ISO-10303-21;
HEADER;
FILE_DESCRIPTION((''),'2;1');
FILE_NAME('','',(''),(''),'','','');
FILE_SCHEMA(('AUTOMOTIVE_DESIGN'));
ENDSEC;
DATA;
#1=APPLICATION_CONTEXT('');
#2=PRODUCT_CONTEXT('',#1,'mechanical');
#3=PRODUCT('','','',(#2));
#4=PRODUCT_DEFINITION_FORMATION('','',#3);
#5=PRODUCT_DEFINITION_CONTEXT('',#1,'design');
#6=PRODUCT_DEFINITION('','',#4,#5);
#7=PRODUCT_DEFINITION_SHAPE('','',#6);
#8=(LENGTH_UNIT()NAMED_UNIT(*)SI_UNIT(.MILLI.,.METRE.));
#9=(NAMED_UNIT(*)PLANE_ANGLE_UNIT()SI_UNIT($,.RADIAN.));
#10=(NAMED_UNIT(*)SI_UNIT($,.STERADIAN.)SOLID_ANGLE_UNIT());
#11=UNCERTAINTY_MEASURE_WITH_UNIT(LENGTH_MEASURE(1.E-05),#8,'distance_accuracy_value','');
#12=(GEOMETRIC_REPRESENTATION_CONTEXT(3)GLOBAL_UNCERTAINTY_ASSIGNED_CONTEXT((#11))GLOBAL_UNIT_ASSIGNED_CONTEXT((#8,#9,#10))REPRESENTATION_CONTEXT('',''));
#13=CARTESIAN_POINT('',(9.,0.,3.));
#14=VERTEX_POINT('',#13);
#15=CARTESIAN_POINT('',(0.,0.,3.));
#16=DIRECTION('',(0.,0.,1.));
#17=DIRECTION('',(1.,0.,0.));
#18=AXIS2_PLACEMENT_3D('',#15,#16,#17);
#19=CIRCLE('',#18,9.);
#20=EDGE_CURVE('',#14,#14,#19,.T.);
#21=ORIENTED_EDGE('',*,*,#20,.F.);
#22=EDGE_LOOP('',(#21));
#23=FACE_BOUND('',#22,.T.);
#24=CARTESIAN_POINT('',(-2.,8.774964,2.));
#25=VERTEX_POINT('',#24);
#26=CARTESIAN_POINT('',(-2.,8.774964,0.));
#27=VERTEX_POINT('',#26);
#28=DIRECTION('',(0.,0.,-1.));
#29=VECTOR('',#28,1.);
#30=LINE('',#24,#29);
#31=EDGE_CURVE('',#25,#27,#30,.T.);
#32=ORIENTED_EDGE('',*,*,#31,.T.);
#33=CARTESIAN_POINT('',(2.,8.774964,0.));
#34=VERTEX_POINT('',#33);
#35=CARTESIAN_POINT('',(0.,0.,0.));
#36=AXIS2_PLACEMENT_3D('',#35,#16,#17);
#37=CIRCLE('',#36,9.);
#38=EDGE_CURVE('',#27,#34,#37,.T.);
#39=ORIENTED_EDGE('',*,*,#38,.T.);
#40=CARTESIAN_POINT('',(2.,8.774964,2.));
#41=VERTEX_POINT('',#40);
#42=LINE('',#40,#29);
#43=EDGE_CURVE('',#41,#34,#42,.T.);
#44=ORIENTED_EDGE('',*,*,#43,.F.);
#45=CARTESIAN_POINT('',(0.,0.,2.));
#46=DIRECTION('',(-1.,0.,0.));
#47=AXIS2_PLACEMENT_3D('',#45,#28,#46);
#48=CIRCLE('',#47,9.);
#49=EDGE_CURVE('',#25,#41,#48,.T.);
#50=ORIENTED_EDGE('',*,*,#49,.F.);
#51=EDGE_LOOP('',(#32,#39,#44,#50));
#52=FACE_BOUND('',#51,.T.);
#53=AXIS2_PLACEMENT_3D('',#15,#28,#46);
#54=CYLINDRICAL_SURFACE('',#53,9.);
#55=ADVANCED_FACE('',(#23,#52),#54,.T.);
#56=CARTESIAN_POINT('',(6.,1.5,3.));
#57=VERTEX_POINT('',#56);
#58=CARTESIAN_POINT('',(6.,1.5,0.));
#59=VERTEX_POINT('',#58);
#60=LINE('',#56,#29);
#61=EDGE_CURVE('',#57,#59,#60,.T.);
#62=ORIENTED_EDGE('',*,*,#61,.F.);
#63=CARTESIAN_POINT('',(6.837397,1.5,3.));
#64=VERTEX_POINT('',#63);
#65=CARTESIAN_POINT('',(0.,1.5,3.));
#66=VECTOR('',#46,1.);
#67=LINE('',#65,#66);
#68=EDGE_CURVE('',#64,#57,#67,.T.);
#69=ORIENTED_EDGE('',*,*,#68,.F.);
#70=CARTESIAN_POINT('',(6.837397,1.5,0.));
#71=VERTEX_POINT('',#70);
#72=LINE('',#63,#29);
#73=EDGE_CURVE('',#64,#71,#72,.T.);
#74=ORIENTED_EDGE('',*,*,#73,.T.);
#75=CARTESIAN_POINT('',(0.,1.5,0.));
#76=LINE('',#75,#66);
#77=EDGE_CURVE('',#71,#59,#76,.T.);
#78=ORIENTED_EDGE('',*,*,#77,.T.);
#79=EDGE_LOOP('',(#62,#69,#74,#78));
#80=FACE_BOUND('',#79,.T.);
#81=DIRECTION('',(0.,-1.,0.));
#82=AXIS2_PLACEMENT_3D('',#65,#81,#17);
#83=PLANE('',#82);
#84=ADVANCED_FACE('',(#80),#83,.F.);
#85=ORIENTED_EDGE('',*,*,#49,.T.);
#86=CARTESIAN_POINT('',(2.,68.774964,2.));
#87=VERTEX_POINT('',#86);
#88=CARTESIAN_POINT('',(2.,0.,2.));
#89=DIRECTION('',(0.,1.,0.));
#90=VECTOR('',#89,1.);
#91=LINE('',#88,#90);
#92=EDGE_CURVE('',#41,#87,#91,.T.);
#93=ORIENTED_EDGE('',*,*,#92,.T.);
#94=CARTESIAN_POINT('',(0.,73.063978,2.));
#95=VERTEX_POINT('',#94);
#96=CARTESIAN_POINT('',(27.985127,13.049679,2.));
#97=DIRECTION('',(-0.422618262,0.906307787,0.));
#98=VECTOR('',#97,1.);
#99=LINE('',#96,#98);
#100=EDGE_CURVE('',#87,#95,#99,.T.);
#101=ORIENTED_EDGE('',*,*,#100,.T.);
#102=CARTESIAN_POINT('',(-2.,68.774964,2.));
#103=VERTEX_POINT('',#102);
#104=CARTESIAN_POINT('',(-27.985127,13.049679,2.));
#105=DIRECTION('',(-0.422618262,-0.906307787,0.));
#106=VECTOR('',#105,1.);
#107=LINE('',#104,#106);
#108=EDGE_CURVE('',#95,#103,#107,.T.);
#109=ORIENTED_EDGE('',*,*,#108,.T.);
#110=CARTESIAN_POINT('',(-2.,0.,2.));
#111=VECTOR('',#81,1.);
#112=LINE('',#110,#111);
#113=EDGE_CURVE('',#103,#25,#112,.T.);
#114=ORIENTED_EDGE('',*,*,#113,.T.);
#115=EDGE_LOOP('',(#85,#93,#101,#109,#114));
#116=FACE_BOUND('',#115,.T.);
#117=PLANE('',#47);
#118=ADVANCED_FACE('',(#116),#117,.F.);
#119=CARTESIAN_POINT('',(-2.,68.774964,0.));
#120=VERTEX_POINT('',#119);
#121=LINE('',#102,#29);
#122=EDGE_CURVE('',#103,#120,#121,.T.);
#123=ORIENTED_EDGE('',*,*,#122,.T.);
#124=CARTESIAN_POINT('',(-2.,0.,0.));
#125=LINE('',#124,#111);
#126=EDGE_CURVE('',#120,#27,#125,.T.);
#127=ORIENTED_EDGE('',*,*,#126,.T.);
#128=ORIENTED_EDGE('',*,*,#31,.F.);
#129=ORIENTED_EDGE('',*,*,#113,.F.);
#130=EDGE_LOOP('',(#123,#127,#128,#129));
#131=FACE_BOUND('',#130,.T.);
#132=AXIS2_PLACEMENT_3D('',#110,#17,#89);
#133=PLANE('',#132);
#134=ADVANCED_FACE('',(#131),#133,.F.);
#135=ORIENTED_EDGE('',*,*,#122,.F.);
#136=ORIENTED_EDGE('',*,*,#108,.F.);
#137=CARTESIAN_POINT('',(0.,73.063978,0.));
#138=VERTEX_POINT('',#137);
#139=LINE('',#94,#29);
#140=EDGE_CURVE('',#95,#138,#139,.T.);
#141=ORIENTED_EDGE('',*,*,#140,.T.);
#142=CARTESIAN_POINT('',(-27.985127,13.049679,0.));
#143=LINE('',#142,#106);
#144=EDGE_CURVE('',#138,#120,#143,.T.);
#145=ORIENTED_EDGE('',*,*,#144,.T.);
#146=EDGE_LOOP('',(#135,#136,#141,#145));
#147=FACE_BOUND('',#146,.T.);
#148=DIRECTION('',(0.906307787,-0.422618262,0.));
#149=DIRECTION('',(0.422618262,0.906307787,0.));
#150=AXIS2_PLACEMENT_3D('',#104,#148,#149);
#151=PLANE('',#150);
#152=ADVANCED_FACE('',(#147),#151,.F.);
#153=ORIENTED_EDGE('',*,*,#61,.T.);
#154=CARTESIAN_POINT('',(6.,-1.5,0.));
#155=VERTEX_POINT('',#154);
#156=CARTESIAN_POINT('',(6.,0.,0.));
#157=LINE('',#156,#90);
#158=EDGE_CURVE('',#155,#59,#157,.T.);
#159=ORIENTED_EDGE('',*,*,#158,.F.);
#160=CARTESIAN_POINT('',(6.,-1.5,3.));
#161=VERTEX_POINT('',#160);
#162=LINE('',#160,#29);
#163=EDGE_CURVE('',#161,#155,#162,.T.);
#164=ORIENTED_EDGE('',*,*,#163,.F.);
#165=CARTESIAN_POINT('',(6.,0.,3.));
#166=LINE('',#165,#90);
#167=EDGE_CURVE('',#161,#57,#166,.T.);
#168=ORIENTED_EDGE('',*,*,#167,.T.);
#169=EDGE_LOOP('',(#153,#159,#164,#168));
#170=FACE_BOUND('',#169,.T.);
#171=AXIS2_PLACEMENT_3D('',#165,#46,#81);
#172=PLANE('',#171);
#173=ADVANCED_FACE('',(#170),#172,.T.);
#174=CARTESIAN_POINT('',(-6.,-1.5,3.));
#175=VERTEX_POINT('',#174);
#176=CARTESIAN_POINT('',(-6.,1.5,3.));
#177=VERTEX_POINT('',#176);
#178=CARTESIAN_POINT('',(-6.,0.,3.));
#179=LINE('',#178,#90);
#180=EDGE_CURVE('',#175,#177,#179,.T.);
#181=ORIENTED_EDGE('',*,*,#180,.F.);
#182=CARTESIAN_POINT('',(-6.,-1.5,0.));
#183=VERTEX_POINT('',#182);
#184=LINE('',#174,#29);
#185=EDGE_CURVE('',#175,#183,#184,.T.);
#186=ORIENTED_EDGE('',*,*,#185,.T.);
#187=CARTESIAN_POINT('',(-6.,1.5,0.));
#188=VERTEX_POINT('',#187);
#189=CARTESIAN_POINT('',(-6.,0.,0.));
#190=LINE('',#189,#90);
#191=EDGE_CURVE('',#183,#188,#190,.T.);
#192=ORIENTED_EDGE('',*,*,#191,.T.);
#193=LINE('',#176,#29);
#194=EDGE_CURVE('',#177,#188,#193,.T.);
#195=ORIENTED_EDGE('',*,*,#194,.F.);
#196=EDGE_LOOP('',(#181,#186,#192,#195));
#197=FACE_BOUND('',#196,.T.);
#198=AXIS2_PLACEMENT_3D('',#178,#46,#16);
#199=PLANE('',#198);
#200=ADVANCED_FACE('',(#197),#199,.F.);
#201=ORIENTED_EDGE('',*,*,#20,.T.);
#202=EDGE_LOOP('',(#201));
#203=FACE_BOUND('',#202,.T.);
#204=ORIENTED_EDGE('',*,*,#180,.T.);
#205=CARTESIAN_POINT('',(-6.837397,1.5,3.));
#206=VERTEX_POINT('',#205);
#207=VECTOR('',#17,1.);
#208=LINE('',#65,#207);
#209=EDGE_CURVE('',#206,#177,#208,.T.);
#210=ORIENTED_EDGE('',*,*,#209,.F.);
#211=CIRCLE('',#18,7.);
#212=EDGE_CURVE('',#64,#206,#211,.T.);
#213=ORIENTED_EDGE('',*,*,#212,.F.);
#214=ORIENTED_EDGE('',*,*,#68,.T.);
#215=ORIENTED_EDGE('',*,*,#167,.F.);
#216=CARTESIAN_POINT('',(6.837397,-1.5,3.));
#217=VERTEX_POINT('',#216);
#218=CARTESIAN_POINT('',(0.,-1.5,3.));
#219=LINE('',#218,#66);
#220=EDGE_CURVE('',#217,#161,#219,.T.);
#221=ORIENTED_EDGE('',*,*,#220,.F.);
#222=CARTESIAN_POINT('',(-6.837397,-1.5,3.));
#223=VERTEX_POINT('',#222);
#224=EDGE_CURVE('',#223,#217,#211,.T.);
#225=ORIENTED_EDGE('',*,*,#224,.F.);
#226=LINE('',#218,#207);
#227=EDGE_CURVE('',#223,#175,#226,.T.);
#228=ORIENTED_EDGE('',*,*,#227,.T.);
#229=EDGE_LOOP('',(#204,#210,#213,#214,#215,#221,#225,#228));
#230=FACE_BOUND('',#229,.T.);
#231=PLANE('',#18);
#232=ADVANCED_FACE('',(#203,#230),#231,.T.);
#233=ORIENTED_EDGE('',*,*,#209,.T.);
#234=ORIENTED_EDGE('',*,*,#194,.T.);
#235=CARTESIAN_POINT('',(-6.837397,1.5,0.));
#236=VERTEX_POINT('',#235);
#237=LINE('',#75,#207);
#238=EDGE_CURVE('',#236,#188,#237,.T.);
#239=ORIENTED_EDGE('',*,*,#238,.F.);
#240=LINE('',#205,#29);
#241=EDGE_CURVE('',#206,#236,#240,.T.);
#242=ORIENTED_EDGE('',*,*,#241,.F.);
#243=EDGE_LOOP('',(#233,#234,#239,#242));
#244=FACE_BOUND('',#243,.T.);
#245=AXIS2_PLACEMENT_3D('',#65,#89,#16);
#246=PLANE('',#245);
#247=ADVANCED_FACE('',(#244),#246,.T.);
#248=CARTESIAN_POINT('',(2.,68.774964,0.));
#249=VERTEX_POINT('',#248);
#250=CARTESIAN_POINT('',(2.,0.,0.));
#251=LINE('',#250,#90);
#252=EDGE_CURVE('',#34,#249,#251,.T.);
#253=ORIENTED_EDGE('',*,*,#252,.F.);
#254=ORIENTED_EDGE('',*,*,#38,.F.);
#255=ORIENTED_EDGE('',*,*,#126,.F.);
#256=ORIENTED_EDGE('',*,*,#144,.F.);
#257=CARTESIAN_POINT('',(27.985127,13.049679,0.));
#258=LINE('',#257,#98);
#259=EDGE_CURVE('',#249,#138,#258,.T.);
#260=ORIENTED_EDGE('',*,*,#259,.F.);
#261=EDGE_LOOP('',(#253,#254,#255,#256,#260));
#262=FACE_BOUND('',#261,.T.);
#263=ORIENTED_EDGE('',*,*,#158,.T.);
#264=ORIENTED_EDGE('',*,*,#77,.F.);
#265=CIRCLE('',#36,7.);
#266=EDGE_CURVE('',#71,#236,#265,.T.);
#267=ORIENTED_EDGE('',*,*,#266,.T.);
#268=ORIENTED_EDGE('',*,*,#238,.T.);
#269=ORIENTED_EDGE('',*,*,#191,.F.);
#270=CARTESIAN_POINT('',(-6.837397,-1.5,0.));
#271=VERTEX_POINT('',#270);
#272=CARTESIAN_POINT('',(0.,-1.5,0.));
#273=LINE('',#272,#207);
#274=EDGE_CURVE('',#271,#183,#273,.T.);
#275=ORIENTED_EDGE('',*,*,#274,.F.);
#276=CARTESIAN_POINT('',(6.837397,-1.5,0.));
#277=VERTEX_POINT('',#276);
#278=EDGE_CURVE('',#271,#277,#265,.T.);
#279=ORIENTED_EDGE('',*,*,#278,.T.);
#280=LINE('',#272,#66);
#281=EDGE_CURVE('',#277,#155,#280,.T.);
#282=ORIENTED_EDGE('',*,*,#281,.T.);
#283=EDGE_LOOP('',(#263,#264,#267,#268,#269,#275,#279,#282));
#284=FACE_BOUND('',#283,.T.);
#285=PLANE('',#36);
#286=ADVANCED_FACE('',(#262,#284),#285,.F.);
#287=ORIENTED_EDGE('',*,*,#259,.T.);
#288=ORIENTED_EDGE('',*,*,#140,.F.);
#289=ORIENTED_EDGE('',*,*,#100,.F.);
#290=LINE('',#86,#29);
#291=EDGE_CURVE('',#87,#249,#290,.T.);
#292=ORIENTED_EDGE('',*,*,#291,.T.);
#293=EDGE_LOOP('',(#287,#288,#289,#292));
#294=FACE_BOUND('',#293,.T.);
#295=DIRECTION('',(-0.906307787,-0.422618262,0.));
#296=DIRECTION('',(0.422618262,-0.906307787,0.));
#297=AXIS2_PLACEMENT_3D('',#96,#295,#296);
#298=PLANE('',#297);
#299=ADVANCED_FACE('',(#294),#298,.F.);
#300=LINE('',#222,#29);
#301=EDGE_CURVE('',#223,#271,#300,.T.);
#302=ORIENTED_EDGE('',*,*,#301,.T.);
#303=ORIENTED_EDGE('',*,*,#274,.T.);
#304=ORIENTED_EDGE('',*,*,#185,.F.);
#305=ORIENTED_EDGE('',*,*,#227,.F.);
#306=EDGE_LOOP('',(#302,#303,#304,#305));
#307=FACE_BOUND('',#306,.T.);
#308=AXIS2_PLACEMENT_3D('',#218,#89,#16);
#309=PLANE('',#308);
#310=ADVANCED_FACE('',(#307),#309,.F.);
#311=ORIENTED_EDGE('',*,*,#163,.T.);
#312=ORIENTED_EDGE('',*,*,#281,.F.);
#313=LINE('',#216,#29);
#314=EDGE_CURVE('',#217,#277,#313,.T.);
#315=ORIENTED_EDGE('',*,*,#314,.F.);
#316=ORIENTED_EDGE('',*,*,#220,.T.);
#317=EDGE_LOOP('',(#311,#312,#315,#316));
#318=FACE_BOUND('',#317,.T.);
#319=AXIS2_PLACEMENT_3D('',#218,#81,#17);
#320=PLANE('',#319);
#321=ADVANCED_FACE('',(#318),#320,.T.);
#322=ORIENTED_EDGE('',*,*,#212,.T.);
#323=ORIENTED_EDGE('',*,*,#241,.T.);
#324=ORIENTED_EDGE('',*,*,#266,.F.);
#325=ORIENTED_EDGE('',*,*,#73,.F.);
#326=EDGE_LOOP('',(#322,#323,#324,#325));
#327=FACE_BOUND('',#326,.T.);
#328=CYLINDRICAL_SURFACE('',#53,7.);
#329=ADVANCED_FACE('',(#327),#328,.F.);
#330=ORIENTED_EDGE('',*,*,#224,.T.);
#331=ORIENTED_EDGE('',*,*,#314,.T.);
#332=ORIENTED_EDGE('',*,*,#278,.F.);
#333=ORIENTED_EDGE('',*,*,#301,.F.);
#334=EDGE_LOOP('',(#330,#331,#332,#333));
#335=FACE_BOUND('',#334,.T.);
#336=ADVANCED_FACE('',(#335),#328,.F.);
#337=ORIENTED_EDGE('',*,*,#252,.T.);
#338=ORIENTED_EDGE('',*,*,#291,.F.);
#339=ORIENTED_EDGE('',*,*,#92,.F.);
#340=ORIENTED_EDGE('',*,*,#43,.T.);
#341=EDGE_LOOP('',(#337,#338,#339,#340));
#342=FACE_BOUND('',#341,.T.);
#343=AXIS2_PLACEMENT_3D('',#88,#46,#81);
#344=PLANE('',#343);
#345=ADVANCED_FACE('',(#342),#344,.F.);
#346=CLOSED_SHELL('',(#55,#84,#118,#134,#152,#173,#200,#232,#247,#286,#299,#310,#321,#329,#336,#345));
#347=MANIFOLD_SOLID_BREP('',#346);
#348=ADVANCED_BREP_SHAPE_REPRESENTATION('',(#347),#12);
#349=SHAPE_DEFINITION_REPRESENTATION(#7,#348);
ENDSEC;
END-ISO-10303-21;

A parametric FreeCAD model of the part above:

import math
import FreeCAD as App
import Part
import Sketcher

V = App.Vector
Q = App.Units.Quantity

doc = App.newDocument("Part")
params = doc.addObject("Spreadsheet::Sheet", "Params")
for row, (alias, value) in enumerate([
    ("sketch1_diameter", "18 mm"),
    ("sketch1_radius", "7 mm"),
    ("sketch1_height", "3 mm"),
    ("pad1_length", "3 mm"),
    ("sketch2_radius", "9 mm"),
    ("sketch2_height", "60 mm"),
    ("pad2_length", "2 mm"),
], start=1):
    params.set(f"A{row}", alias)
    params.set(f"B{row}", "=" + value)
    params.setAlias(f"B{row}", alias)

body = doc.addObject("PartDesign::Body", "Body")

# Sketch on XY plane
sketch1 = body.newObject("Sketcher::SketchObject", "Sketch")
sketch1.AttachmentSupport = (doc.getObject("XY_Plane"), [""])
sketch1.MapMode = "FlatFace"
sketch1.addGeometry(Part.Circle(V(0, 0, 0), V(0, 0, 1), 9), False)
sketch1.addGeometry(Part.ArcOfCircle(Part.Circle(V(0, 0, 0), V(0, 0, 1), 7), math.radians(-168), math.radians(-12)), False)
sketch1.addGeometry(Part.LineSegment(V(-6.8, -1.5, 0), V(-6, -1.5, 0)), False)
sketch1.addGeometry(Part.LineSegment(V(-6, -1.5, 0), V(-6, 1.5, 0)), False)
sketch1.addGeometry(Part.LineSegment(V(-6, 1.5, 0), V(-6.8, 1.5, 0)), False)
sketch1.addGeometry(Part.ArcOfCircle(Part.Circle(V(0, 0, 0), V(0, 0, 1), 7), math.radians(12), math.radians(168)), False)
sketch1.addGeometry(Part.LineSegment(V(6.8, 1.5, 0), V(6, 1.5, 0)), False)
sketch1.addGeometry(Part.LineSegment(V(6, 1.5, 0), V(6, -1.5, 0)), False)
sketch1.addGeometry(Part.LineSegment(V(6, -1.5, 0), V(6.8, -1.5, 0)), False)
sketch1.addConstraint(Sketcher.Constraint("Coincident", 1, 1, 2, 1))
sketch1.addConstraint(Sketcher.Constraint("Coincident", 2, 2, 3, 1))
sketch1.addConstraint(Sketcher.Constraint("Coincident", 3, 2, 4, 1))
sketch1.addConstraint(Sketcher.Constraint("Coincident", 4, 2, 5, 2))
sketch1.addConstraint(Sketcher.Constraint("Coincident", 5, 1, 6, 1))
sketch1.addConstraint(Sketcher.Constraint("Coincident", 6, 2, 7, 1))
sketch1.addConstraint(Sketcher.Constraint("Coincident", 7, 2, 8, 1))
sketch1.addConstraint(Sketcher.Constraint("Coincident", 8, 2, 1, 2))
sketch1.addConstraint(Sketcher.Constraint("Horizontal", 2))
sketch1.addConstraint(Sketcher.Constraint("Vertical", 3))
sketch1.addConstraint(Sketcher.Constraint("Horizontal", 4))
sketch1.addConstraint(Sketcher.Constraint("Horizontal", 6))
sketch1.addConstraint(Sketcher.Constraint("Vertical", 7))
sketch1.addConstraint(Sketcher.Constraint("Horizontal", 8))
sketch1.addConstraint(Sketcher.Constraint("Coincident", 0, 3, -1, 1))
sketch1.addConstraint(Sketcher.Constraint("Coincident", 1, 3, -1, 1))
sketch1.addConstraint(Sketcher.Constraint("Coincident", 5, 3, -1, 1))
sketch1.addConstraint(Sketcher.Constraint("Equal", 1, 5))
sketch1.addConstraint(Sketcher.Constraint("Symmetric", 2, 2, 6, 2, -1, 1))
sketch1.addConstraint(Sketcher.Constraint("Horizontal", 4, 2, 5, 1))
sketch1.addConstraint(Sketcher.Constraint("Horizontal", 2, 2, 7, 2))
sketch1.addConstraint(Sketcher.Constraint("Diameter", 0, 18.0))
sketch1.addConstraint(Sketcher.Constraint("Radius", 1, 7.0))
sketch1.addConstraint(Sketcher.Constraint("DistanceY", 3, 1, 3, 2, 3.0))
sketch1.addConstraint(Sketcher.Constraint("DistanceX", 2, 2, -1, 1, 6.0))
sketch1.setExpression("Constraints[21]", "Params.sketch1_diameter")
sketch1.setExpression("Constraints[22]", "Params.sketch1_radius")
sketch1.setExpression("Constraints[23]", "Params.sketch1_height")
pad1 = body.newObject("PartDesign::Pad", "Pad")
pad1.Profile = sketch1
pad1.setExpression("Length", "Params.pad1_length")

# Sketch on XY plane
sketch2 = body.newObject("Sketcher::SketchObject", "Sketch001")
sketch2.AttachmentSupport = (doc.getObject("XY_Plane"), [""])
sketch2.MapMode = "FlatFace"
sketch2.addGeometry(Part.LineSegment(V(2, 68.8, 0), V(2, 8.8, 0)), False)
sketch2.addGeometry(Part.ArcOfCircle(Part.Circle(V(0, 0, 0), V(0, 0, 1), 9), math.radians(77), math.radians(103)), False)
sketch2.addGeometry(Part.LineSegment(V(-2, 8.8, 0), V(-2, 68.8, 0)), False)
sketch2.addGeometry(Part.LineSegment(V(-2, 68.8, 0), V(0, 73.1, 0)), False)
sketch2.addGeometry(Part.LineSegment(V(0, 73.1, 0), V(2, 68.8, 0)), False)
sketch2.addConstraint(Sketcher.Constraint("Coincident", 0, 2, 1, 1))
sketch2.addConstraint(Sketcher.Constraint("Coincident", 1, 2, 2, 1))
sketch2.addConstraint(Sketcher.Constraint("Coincident", 2, 2, 3, 1))
sketch2.addConstraint(Sketcher.Constraint("Coincident", 3, 2, 4, 1))
sketch2.addConstraint(Sketcher.Constraint("Coincident", 4, 2, 0, 1))
sketch2.addConstraint(Sketcher.Constraint("Vertical", 0))
sketch2.addConstraint(Sketcher.Constraint("Vertical", 2))
sketch2.addConstraint(Sketcher.Constraint("Coincident", 1, 3, -1, 1))
sketch2.addConstraint(Sketcher.Constraint("Symmetric", 2, 2, 4, 2, -2))
sketch2.addConstraint(Sketcher.Constraint("PointOnObject", 3, 2, -2))
sketch2.addConstraint(Sketcher.Constraint("Radius", 1, 9.0))
sketch2.addConstraint(Sketcher.Constraint("DistanceY", 0, 2, 0, 1, 60.0))
sketch2.addConstraint(Sketcher.Constraint("Angle", 3, Q("65 deg")))
sketch2.addConstraint(Sketcher.Constraint("DistanceX", -1, 1, 0, 2, 2.0))
sketch2.setExpression("Constraints[10]", "Params.sketch2_radius")
sketch2.setExpression("Constraints[11]", "Params.sketch2_height")
pad2 = body.newObject("PartDesign::Pad", "Pad001")
pad2.Profile = sketch2
pad2.setExpression("Length", "Params.pad2_length")

doc.recompute()
